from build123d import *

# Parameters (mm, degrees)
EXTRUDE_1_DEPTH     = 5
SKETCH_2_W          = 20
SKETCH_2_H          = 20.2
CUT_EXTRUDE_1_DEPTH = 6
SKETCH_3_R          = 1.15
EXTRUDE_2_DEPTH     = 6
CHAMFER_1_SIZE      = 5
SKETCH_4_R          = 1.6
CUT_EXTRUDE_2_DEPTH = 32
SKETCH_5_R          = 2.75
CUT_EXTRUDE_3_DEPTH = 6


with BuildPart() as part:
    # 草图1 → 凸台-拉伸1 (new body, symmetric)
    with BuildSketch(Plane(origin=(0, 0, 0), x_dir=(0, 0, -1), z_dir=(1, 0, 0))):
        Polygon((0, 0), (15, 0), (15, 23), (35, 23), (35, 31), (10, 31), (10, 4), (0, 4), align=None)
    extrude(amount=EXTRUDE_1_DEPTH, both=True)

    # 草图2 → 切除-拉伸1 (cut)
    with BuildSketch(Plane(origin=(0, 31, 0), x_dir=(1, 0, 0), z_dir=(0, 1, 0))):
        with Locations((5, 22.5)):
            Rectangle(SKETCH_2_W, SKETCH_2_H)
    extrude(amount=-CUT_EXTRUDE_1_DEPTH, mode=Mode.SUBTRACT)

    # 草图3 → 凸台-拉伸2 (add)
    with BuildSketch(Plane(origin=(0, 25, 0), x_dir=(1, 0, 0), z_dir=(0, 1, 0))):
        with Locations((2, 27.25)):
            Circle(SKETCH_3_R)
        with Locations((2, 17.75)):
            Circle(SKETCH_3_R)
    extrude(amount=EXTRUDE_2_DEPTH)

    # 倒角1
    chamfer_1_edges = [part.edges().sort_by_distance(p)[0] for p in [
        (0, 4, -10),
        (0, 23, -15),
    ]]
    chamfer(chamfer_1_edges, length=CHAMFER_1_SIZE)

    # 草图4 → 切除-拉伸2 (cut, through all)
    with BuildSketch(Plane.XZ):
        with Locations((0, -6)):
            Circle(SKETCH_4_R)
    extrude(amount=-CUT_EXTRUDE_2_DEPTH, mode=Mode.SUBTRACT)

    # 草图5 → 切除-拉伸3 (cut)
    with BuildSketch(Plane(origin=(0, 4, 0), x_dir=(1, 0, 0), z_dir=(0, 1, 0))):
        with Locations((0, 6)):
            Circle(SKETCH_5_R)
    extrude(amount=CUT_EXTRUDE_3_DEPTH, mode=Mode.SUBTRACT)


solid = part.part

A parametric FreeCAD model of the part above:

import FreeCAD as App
import Part
import Sketcher
from FreeCAD import Vector


def edges_at(feature, points):
    """Names of the edges that pass closest to the given points."""
    edges = feature.Shape.Edges
    near = lambda p: min(range(len(edges)), key=lambda i: edges[i].distToShape(Part.Vertex(*p))[0])
    return sorted({f"Edge{near(p) + 1}" for p in points})

doc = App.newDocument("Part")
body = doc.addObject("PartDesign::Body", "Body")

sketch1 = doc.addObject("Sketcher::SketchObject", "Sketch")
body.addObject(sketch1)
sketch1.AttachmentSupport = (doc.YZ_Plane, [""])
sketch1.MapMode = "FlatFace"
sketch1.addGeometry(Part.LineSegment(Vector(0, 0, 0), Vector(0, -15, 0)), False)
sketch1.addGeometry(Part.LineSegment(Vector(0, -15, 0), Vector(23, -15, 0)), False)
sketch1.addGeometry(Part.LineSegment(Vector(23, -15, 0), Vector(23, -35, 0)), False)
sketch1.addGeometry(Part.LineSegment(Vector(23, -35, 0), Vector(31, -35, 0)), False)
sketch1.addGeometry(Part.LineSegment(Vector(31, -35, 0), Vector(31, -10, 0)), False)
sketch1.addGeometry(Part.LineSegment(Vector(31, -10, 0), Vector(4, -10, 0)), False)
sketch1.addGeometry(Part.LineSegment(Vector(4, -10, 0), Vector(4, 0, 0)), False)
sketch1.addGeometry(Part.LineSegment(Vector(4, 0, 0), Vector(0, 0, 0)), False)
sketch1.addConstraint(Sketcher.Constraint("Coincident", 0, 2, 1, 1))
sketch1.addConstraint(Sketcher.Constraint("Coincident", 1, 2, 2, 1))
sketch1.addConstraint(Sketcher.Constraint("Coincident", 2, 2, 3, 1))
sketch1.addConstraint(Sketcher.Constraint("Coincident", 3, 2, 4, 1))
sketch1.addConstraint(Sketcher.Constraint("Coincident", 4, 2, 5, 1))
sketch1.addConstraint(Sketcher.Constraint("Coincident", 5, 2, 6, 1))
sketch1.addConstraint(Sketcher.Constraint("Coincident", 6, 2, 7, 1))
sketch1.addConstraint(Sketcher.Constraint("Coincident", 7, 2, 0, 1))
sketch1.addConstraint(Sketcher.Constraint("Vertical", 0))
sketch1.addConstraint(Sketcher.Constraint("Horizontal", 1))
sketch1.addConstraint(Sketcher.Constraint("Vertical", 2))
sketch1.addConstraint(Sketcher.Constraint("Horizontal", 3))
sketch1.addConstraint(Sketcher.Constraint("Vertical", 4))
sketch1.addConstraint(Sketcher.Constraint("Horizontal", 5))
sketch1.addConstraint(Sketcher.Constraint("Vertical", 6))
sketch1.addConstraint(Sketcher.Constraint("Horizontal", 7))
sketch1.addConstraint(Sketcher.Constraint("Coincident", 7, 2, -1, 1))
sketch1.addConstraint(Sketcher.Constraint("DistanceX", 1, 1, 1, 2, 23.0))
sketch1.addConstraint(Sketcher.Constraint("DistanceX", 3, 1, 3, 2, 8.0))
sketch1.addConstraint(Sketcher.Constraint("DistanceX", 5, 2, 5, 1, 27.0))
sketch1.addConstraint(Sketcher.Constraint("DistanceY", 0, 2, 0, 1, 15.0))
sketch1.addConstraint(Sketcher.Constraint("DistanceY", 2, 2, 2, 1, 20.0))
sketch1.addConstraint(Sketcher.Constraint("DistanceY", 4, 1, 4, 2, 25.0))
pad1 = doc.addObject("PartDesign::Pad", "Pad")
body.addObject(pad1)
pad1.Profile = sketch1
pad1.Length = 10
pad1.Midplane = True

sketch2 = doc.addObject("Sketcher::SketchObject", "Sketch001")
body.addObject(sketch2)
sketch2.AttachmentSupport = (doc.XZ_Plane, [""])
sketch2.MapMode = "FlatFace"
sketch2.AttachmentOffset = App.Placement(Vector(0, 0, -31), App.Rotation())
sketch2.addGeometry(Part.LineSegment(Vector(-5, -33, 0), Vector(-5, -12, 0)), False)
sketch2.addGeometry(Part.LineSegment(Vector(-5, -12, 0), Vector(15, -12, 0)), False)
sketch2.addGeometry(Part.LineSegment(Vector(15, -12, 0), Vector(15, -33, 0)), False)
sketch2.addGeometry(Part.LineSegment(Vector(15, -33, 0), Vector(-5, -33, 0)), False)
sketch2.addConstraint(Sketcher.Constraint("Coincident", 0, 2, 1, 1))
sketch2.addConstraint(Sketcher.Constraint("Coincident", 1, 2, 2, 1))
sketch2.addConstraint(Sketcher.Constraint("Coincident", 2, 2, 3, 1))
sketch2.addConstraint(Sketcher.Constraint("Coincident", 3, 2, 0, 1))
sketch2.addConstraint(Sketcher.Constraint("Vertical", 0))
sketch2.addConstraint(Sketcher.Constraint("Horizontal", 1))
sketch2.addConstraint(Sketcher.Constraint("Vertical", 2))
sketch2.addConstraint(Sketcher.Constraint("Horizontal", 3))
sketch2.addConstraint(Sketcher.Constraint("DistanceX", 1, 1, 1, 2, 20.0))
sketch2.addConstraint(Sketcher.Constraint("DistanceY", 0, 1, 0, 2, 20.2))
sketch2.addConstraint(Sketcher.Constraint("DistanceX", 0, 2, -1, 1, 5.0))
sketch2.addConstraint(Sketcher.Constraint("DistanceY", 0, 2, -1, 1, 12.4))
pocket1 = doc.addObject("PartDesign::Pocket", "Pocket")
body.addObject(pocket1)
pocket1.Profile = sketch2
pocket1.Length = 6
pocket1.Reversed = True

sketch3 = doc.addObject("Sketcher::SketchObject", "Sketch002")
body.addObject(sketch3)
sketch3.AttachmentSupport = (doc.XZ_Plane, [""])
sketch3.MapMode = "FlatFace"
sketch3.AttachmentOffset = App.Placement(Vector(0, 0, -25), App.Rotation())
sketch3.addGeometry(Part.Circle(Vector(2, -27.2, 0), Vector(0, 0, 1), 1.1), False)
sketch3.addGeometry(Part.Circle(Vector(2, -17.8, 0), Vector(0, 0, 1), 1.1), False)
sketch3.addConstraint(Sketcher.Constraint("Equal", 0, 1))
sketch3.addConstraint(Sketcher.Constraint("Vertical", 0, 3, 1, 3))
sketch3.addConstraint(Sketcher.Constraint("Diameter", 0, 2.3))
sketch3.addConstraint(Sketcher.Constraint("DistanceX", -1, 1, 0, 3, 2.0))
sketch3.addConstraint(Sketcher.Constraint("DistanceY", 0, 3, 1, 3, 9.5))
sketch3.addConstraint(Sketcher.Constraint("DistanceY", 0, 3, -1, 1, 27.25))
pad2 = doc.addObject("PartDesign::Pad", "Pad001")
body.addObject(pad2)
pad2.Profile = sketch3
pad2.Length = 6
pad2.Reversed = True
doc.recompute()

chamfer = doc.addObject("PartDesign::Chamfer", "Chamfer")
body.addObject(chamfer)
chamfer.Base = (pad2, edges_at(pad2, [(0, 4, -10), (0, 23, -15)]))
chamfer.Size = 5

sketch4 = doc.addObject("Sketcher::SketchObject", "Sketch003")
body.addObject(sketch4)
sketch4.AttachmentSupport = (doc.XZ_Plane, [""])
sketch4.MapMode = "FlatFace"
sketch4.addGeometry(Part.Circle(Vector(0, -6, 0), Vector(0, 0, 1), 1.6), False)
sketch4.addConstraint(Sketcher.Constraint("PointOnObject", 0, 3, -2))
sketch4.addConstraint(Sketcher.Constraint("Diameter", 0, 3.2))
sketch4.addConstraint(Sketcher.Constraint("DistanceY", 0, 3, -1, 1, 6.0))
pocket2 = doc.addObject("PartDesign::Pocket", "Pocket001")
body.addObject(pocket2)
pocket2.Profile = sketch4
pocket2.Type = "ThroughAll"

sketch5 = doc.addObject("Sketcher::SketchObject", "Sketch004")
body.addObject(sketch5)
sketch5.AttachmentSupport = (doc.XZ_Plane, [""])
sketch5.MapMode = "FlatFace"
sketch5.AttachmentOffset = App.Placement(Vector(0, 0, -4), App.Rotation())
sketch5.addGeometry(Part.Circle(Vector(0, -6, 0), Vector(0, 0, 1), 2.8), False)
sketch5.addConstraint(Sketcher.Constraint("PointOnObject", 0, 3, -2))
sketch5.addConstraint(Sketcher.Constraint("Diameter", 0, 5.5))
sketch5.addConstraint(Sketcher.Constraint("DistanceY", 0, 3, -1, 1, 6.0))
pocket3 = doc.addObject("PartDesign::Pocket", "Pocket002")
body.addObject(pocket3)
pocket3.Profile = sketch5
pocket3.Length = 6

doc.recompute()
